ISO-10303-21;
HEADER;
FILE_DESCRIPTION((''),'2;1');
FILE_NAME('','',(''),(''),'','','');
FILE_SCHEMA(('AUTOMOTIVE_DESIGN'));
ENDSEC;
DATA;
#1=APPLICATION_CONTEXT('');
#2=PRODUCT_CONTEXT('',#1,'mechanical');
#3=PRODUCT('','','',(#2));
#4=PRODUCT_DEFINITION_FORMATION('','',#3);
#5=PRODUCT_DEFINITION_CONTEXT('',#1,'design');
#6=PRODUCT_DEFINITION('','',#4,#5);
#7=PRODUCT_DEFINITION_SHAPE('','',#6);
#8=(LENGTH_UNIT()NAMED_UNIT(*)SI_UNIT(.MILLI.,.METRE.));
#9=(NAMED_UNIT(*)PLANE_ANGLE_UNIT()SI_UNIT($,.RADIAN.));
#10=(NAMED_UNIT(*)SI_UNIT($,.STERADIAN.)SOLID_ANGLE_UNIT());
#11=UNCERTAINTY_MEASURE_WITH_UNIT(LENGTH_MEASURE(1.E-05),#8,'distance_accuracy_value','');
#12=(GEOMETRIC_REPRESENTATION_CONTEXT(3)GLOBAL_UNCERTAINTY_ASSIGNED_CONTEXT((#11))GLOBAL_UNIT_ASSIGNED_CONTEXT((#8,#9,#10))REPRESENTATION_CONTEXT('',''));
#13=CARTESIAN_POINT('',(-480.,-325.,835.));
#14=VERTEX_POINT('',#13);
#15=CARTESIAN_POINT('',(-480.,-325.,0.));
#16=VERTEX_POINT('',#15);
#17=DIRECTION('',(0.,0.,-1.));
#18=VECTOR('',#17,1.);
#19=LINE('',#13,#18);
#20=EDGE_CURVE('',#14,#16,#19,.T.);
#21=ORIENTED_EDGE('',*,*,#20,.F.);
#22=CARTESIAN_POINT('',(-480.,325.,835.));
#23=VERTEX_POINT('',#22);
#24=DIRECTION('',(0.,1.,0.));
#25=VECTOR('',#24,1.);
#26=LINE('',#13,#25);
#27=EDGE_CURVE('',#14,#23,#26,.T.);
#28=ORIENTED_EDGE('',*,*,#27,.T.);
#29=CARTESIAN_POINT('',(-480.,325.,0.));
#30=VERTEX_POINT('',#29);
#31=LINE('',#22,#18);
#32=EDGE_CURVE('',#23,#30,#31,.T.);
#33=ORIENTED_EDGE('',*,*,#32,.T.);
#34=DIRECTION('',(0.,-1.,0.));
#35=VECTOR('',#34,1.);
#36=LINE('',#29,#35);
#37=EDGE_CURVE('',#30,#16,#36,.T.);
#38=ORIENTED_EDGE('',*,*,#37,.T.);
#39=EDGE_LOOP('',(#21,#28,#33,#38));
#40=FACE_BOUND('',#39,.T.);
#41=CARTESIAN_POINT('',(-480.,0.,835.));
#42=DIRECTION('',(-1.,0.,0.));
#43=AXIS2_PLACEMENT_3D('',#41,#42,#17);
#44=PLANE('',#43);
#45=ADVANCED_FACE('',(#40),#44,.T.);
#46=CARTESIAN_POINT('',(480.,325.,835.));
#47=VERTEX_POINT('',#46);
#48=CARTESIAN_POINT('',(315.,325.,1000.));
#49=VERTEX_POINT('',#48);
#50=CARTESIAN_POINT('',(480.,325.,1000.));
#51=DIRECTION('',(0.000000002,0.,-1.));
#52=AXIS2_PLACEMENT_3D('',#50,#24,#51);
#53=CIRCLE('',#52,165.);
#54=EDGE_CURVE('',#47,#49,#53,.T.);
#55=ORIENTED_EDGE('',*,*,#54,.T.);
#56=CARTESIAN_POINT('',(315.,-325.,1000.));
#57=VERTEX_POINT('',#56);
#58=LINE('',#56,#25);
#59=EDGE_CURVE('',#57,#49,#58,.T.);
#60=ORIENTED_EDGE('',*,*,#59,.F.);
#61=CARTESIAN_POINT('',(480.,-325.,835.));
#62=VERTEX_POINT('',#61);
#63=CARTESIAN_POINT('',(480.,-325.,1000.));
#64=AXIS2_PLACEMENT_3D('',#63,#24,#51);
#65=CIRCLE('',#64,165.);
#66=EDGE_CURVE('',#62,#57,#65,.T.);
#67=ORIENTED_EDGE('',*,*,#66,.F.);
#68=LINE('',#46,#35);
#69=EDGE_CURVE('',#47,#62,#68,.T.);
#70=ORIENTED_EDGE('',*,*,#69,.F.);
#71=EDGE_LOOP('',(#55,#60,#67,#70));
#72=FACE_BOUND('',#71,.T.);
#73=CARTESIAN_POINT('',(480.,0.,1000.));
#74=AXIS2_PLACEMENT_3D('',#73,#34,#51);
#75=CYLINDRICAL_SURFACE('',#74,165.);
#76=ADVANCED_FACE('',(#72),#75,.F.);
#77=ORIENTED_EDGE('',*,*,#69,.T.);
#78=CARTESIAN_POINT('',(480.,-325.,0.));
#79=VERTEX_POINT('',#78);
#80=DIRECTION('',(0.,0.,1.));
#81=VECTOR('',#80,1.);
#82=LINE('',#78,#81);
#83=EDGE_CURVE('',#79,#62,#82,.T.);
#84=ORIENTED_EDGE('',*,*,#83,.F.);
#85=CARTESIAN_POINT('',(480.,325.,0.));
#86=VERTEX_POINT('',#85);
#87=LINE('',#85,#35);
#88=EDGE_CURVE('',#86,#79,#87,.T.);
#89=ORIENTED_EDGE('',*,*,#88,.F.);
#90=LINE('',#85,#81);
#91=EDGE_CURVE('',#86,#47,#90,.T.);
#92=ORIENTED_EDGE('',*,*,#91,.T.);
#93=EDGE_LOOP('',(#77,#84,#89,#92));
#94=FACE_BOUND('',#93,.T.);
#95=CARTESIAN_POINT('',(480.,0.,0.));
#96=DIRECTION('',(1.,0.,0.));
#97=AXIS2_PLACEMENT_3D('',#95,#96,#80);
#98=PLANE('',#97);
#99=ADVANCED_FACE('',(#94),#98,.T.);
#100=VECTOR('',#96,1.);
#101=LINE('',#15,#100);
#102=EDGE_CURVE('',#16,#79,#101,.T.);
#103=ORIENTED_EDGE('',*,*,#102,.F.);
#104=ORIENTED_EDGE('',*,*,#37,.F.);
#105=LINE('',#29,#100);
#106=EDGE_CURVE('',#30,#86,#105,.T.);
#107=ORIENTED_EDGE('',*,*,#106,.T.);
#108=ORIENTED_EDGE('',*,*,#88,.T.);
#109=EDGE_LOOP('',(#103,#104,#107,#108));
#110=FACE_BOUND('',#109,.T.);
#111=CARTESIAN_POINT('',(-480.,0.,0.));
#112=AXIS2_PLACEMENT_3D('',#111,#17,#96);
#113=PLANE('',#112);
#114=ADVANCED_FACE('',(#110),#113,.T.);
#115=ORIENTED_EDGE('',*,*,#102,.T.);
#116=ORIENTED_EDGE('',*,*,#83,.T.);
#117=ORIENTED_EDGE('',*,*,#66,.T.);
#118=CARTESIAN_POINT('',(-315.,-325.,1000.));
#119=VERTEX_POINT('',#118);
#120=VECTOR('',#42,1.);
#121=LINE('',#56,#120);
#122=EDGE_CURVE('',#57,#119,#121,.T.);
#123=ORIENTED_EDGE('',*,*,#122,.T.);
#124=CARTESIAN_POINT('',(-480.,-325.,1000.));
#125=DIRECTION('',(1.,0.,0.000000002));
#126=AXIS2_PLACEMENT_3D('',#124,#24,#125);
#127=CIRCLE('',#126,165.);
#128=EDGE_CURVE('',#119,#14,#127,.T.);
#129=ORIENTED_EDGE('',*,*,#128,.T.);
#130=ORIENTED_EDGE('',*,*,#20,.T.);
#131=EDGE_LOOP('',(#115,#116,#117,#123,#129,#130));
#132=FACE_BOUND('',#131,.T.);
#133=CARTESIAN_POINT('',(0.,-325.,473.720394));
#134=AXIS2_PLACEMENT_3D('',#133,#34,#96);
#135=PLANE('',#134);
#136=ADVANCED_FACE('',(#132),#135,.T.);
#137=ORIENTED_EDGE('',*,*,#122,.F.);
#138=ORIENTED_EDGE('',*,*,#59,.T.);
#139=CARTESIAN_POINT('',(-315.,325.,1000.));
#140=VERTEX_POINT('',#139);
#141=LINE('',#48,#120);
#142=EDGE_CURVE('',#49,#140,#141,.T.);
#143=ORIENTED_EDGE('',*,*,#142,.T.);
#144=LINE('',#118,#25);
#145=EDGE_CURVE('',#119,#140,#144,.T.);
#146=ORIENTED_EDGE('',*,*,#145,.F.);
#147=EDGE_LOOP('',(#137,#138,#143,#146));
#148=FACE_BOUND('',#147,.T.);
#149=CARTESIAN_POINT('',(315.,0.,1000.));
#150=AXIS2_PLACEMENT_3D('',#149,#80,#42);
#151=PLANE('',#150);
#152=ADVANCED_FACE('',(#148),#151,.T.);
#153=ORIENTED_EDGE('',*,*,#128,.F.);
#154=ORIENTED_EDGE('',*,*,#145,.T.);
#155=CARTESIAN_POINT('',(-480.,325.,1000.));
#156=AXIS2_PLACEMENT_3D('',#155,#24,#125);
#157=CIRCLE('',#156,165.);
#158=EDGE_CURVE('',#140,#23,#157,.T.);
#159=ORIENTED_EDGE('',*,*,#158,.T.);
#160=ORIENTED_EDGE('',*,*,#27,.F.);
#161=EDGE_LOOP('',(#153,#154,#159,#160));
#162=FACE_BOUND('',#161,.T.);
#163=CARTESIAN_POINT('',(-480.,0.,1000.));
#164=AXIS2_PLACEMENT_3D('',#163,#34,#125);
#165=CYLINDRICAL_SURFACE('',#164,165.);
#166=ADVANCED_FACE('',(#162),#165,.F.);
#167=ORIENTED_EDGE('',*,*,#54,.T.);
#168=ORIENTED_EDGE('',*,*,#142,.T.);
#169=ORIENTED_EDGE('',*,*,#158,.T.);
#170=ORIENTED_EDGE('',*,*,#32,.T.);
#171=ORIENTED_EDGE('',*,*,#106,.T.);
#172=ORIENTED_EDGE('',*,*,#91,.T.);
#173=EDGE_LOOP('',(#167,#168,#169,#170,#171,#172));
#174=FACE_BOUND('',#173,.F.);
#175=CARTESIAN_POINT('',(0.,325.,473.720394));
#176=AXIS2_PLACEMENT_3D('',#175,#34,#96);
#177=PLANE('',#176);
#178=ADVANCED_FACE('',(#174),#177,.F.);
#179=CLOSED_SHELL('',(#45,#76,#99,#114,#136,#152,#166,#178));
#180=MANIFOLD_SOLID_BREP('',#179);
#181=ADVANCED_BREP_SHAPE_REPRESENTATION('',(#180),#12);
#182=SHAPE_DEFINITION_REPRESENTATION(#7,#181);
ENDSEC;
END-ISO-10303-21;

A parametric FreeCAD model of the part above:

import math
import FreeCAD as App
import Part
import Sketcher
Q = App.Units.Quantity

doc = App.newDocument("Part")
body = doc.addObject("PartDesign::Body", "Body")

sketch1 = body.newObject("Sketcher::SketchObject", "Sketch")
sketch1.AttachmentSupport = (doc.getObject("XZ_Plane"), [""])
sketch1.MapMode = "FlatFace"
sketch1.addGeometry([
    Part.LineSegment(App.Vector(-480, 835, 0), App.Vector(-480, 0, 0)),
    Part.LineSegment(App.Vector(-480, 0, 0), App.Vector(480, 0, 0)),
    Part.LineSegment(App.Vector(480, 0, 0), App.Vector(480, 835, 0)),
    Part.ArcOfCircle(Part.Circle(App.Vector(480, 1000, 0), App.Vector(0, 0, 1), 165), math.radians(180), math.radians(270)),
    Part.LineSegment(App.Vector(315, 1000, 0), App.Vector(-315, 1000, 0)),
    Part.ArcOfCircle(Part.Circle(App.Vector(-480, 1000, 0), App.Vector(0, 0, 1), 165), math.radians(-90), math.radians(0)),
], False)
sketch1.addConstraint([
    Sketcher.Constraint("Coincident", 0, 2, 1, 1),
    Sketcher.Constraint("Coincident", 1, 2, 2, 1),
    Sketcher.Constraint("Coincident", 2, 2, 3, 2),
    Sketcher.Constraint("Coincident", 3, 1, 4, 1),
    Sketcher.Constraint("Coincident", 4, 2, 5, 2),
    Sketcher.Constraint("Coincident", 5, 1, 0, 1),
    Sketcher.Constraint("Vertical", 0),
    Sketcher.Constraint("Horizontal", 1),
    Sketcher.Constraint("Vertical", 2),
    Sketcher.Constraint("Horizontal", 4),
    Sketcher.Constraint("Equal", 3, 5),
    Sketcher.Constraint("Symmetric", 0, 2, 1, 2, -1, 1),
    Sketcher.Constraint("Symmetric", 3, 3, 5, 3, -2),
    Sketcher.Constraint("Horizontal", 5, 3, 3, 1),
    Sketcher.Constraint("Vertical", 5, 3, 0, 2),
    Sketcher.Constraint("Radius", 3, Q("165 mm")),
    Sketcher.Constraint("DistanceX", 1, 1, 1, 2, Q("960 mm")),
    Sketcher.Constraint("DistanceY", 0, 2, 0, 1, Q("835 mm")),
])
pad1 = body.newObject("PartDesign::Pad", "Pad")
pad1.Profile = sketch1
pad1.Length = 650
pad1.Midplane = True

doc.recompute()
